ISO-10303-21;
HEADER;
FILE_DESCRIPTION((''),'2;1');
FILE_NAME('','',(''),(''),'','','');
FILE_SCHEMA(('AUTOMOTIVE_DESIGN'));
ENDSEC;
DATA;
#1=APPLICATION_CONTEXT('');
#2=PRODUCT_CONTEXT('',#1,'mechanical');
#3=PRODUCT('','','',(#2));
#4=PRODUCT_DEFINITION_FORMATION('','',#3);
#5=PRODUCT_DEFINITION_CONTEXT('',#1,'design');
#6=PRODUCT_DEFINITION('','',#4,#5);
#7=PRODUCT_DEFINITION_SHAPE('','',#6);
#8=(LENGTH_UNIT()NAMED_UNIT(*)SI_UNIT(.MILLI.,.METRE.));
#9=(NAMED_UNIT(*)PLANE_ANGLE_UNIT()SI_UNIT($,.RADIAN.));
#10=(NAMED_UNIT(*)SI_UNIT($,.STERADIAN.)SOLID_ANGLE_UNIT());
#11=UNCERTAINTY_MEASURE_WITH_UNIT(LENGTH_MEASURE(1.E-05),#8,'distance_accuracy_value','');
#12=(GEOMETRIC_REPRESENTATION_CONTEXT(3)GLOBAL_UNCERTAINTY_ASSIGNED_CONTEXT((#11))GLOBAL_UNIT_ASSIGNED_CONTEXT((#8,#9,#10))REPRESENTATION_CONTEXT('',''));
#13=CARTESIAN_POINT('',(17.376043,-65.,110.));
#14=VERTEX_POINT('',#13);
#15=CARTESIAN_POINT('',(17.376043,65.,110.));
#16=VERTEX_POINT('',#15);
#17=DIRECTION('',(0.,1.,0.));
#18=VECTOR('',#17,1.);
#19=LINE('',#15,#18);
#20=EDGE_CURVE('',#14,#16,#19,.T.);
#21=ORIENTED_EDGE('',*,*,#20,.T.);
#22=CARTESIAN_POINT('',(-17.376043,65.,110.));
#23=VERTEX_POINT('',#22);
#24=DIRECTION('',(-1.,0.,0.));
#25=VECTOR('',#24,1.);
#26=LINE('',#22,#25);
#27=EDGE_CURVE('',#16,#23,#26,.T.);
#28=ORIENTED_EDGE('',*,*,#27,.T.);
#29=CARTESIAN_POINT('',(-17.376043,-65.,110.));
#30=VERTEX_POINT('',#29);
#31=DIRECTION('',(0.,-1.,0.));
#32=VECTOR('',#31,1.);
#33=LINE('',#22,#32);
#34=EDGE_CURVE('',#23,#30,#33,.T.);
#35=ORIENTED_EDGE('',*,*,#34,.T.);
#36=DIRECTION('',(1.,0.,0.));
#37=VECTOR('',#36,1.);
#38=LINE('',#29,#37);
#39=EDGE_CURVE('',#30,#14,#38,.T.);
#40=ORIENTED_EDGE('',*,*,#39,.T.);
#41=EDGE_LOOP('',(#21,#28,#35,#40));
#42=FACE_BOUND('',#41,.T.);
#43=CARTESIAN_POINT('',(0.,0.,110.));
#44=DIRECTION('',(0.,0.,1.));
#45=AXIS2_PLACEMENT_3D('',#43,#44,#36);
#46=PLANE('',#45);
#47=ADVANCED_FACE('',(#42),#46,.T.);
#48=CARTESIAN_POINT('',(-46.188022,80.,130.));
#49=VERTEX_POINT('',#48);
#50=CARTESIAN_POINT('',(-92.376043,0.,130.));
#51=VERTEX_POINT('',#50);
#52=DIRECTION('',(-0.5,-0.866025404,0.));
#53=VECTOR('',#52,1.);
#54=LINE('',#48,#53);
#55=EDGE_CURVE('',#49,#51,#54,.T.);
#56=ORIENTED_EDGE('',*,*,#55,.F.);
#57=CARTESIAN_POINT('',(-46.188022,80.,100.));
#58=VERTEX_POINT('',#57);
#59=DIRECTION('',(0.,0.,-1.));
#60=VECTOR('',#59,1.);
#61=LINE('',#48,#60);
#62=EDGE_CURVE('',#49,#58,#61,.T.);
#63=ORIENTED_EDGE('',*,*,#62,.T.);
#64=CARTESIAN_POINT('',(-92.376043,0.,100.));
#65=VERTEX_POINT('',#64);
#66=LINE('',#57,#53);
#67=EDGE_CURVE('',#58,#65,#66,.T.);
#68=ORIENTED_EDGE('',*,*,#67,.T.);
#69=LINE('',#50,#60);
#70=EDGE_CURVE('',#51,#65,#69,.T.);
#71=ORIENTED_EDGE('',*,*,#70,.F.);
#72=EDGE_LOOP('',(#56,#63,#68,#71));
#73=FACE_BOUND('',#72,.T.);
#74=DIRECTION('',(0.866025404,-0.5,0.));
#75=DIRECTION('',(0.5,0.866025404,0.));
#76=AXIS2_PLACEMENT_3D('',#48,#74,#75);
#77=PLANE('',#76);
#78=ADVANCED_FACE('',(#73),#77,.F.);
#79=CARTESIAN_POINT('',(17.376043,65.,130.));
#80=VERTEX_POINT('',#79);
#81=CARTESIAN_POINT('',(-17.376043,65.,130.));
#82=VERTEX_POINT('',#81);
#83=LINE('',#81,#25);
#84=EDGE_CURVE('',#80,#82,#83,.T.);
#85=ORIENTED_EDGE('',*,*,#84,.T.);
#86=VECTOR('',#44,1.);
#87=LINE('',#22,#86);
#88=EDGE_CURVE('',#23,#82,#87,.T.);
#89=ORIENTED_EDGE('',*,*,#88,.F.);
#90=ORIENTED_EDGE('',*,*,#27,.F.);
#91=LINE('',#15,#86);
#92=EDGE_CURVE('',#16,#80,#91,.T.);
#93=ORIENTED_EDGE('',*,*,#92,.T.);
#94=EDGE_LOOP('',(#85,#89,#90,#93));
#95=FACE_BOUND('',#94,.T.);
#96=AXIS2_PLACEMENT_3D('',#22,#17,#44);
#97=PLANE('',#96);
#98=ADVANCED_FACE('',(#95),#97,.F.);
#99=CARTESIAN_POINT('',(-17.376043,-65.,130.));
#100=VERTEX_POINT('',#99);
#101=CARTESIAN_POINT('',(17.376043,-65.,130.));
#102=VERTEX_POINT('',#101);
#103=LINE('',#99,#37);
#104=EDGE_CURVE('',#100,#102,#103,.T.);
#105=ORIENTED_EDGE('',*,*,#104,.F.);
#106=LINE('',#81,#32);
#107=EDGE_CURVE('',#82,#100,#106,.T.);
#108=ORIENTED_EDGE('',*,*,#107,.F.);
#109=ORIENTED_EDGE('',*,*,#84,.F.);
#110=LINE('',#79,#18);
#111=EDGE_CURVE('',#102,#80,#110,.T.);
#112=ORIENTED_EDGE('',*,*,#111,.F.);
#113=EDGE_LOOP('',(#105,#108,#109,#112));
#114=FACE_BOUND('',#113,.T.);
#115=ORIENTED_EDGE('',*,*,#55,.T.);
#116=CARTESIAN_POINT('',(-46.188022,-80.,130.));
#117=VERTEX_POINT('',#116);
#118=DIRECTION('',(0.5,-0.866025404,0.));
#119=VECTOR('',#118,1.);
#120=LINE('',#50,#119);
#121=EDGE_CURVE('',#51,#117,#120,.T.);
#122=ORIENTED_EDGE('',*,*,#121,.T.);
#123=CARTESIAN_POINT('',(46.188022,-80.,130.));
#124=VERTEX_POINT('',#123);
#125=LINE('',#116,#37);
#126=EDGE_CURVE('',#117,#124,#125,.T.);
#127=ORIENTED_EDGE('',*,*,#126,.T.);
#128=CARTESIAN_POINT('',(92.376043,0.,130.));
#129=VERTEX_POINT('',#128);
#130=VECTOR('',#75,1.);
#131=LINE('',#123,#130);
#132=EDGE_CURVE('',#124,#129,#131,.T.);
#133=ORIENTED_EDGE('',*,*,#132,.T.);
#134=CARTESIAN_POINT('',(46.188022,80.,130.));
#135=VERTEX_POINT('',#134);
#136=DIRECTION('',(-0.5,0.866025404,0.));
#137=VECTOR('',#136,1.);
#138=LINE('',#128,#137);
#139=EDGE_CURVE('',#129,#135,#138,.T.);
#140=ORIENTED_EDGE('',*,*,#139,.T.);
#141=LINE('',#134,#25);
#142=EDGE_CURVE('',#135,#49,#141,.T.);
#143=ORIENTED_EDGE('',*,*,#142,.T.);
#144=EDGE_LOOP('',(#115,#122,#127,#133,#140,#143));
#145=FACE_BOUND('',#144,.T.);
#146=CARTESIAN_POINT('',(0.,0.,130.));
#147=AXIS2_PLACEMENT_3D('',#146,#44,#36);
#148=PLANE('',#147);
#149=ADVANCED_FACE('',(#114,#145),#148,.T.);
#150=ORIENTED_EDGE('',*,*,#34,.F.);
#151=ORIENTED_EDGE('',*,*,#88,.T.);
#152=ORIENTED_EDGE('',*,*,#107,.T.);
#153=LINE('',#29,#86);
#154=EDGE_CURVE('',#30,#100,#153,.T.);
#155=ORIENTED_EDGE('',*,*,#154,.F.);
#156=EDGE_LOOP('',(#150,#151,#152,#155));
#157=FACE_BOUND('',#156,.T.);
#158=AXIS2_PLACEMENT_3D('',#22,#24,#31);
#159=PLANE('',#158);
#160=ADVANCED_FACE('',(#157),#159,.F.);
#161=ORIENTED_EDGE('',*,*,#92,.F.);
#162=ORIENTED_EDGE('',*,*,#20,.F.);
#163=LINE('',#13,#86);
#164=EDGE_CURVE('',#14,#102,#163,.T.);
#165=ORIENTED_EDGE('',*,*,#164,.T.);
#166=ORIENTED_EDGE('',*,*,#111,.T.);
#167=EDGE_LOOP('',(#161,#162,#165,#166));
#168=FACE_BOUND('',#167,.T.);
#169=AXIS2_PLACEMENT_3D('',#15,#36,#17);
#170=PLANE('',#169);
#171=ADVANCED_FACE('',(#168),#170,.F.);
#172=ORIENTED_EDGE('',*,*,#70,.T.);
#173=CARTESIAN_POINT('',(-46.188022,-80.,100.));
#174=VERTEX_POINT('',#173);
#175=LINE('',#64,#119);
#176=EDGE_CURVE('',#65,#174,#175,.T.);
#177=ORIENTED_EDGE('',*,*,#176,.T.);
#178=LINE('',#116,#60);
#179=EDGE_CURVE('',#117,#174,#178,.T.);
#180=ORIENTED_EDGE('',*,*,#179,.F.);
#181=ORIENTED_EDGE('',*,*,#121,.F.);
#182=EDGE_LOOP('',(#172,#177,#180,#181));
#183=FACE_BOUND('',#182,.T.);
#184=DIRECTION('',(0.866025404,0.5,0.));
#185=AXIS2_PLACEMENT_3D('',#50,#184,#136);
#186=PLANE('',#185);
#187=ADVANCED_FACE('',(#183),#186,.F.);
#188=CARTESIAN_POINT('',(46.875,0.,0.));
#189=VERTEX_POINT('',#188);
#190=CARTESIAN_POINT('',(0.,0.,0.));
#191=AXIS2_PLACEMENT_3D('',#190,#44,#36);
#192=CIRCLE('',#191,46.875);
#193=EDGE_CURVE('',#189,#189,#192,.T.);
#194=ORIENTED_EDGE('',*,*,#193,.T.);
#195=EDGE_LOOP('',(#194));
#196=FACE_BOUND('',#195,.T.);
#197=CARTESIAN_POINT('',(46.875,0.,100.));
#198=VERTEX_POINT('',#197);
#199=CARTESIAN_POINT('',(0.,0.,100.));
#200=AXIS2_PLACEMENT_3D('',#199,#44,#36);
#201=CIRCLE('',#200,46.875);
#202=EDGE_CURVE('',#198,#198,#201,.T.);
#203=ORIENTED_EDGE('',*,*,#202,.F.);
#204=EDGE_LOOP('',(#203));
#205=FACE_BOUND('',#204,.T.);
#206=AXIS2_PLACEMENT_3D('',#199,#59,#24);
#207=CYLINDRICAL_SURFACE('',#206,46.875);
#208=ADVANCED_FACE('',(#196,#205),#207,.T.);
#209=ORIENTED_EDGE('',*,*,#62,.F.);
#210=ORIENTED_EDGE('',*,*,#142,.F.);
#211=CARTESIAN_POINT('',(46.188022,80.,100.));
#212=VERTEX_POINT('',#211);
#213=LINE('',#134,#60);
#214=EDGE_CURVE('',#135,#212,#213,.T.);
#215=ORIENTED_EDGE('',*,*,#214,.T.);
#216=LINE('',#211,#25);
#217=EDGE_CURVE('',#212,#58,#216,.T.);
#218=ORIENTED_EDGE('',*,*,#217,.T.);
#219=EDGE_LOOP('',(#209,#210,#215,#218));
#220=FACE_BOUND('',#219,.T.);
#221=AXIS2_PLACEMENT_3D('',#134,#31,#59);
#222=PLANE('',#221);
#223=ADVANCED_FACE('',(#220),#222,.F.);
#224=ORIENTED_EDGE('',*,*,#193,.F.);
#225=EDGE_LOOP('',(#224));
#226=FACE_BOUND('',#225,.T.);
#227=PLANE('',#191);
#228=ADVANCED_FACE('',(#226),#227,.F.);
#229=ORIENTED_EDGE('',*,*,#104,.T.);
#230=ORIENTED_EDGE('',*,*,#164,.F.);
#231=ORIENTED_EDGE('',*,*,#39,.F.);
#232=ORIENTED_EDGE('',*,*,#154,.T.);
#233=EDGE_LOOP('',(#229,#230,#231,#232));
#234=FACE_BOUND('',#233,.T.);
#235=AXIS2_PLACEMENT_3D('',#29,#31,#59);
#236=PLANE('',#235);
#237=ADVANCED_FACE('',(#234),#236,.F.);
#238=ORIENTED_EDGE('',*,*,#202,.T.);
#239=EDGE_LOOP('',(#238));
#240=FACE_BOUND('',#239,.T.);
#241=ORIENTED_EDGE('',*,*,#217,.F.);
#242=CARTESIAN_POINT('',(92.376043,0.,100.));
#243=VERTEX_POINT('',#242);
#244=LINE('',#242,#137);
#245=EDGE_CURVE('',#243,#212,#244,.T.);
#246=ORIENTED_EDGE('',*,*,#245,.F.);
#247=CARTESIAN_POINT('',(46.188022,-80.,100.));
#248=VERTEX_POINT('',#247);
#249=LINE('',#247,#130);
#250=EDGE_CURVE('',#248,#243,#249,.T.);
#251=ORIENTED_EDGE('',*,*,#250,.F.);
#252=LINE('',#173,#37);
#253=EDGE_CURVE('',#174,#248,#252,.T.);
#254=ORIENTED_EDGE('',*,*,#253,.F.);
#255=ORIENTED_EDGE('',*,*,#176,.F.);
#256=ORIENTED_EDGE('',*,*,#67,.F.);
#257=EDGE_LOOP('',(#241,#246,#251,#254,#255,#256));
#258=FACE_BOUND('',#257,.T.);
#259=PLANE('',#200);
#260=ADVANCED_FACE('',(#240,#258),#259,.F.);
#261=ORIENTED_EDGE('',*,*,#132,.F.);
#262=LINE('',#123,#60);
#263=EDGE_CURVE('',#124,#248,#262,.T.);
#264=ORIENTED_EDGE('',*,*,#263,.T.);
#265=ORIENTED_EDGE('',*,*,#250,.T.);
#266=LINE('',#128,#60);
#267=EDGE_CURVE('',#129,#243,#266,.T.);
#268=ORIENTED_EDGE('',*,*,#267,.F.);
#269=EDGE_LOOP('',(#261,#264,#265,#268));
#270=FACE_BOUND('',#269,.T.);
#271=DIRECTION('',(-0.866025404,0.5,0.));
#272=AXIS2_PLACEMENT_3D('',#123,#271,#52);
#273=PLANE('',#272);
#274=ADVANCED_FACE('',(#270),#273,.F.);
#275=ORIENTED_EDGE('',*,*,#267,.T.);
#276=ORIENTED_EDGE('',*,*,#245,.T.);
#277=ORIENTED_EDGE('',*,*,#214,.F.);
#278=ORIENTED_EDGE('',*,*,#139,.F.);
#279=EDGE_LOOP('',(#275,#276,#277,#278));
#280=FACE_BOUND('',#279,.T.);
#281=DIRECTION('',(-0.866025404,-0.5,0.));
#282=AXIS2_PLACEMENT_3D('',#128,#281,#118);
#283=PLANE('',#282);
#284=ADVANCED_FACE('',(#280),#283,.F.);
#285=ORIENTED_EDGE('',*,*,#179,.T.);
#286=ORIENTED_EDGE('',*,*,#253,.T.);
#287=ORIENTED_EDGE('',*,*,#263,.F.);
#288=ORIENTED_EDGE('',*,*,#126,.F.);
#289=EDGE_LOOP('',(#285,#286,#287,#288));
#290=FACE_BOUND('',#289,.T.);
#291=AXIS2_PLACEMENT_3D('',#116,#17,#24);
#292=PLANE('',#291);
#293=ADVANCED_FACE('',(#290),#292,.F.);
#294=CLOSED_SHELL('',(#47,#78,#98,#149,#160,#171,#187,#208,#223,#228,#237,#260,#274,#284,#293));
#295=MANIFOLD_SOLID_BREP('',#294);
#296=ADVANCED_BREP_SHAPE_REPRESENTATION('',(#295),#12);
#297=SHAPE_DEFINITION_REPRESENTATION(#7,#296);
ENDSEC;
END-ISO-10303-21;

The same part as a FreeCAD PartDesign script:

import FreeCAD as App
import Part
import Sketcher
from FreeCAD import Vector
Q = App.Units.Quantity

doc = App.newDocument("Part")
body = doc.addObject("PartDesign::Body", "Body")

sketch1 = body.newObject("Sketcher::SketchObject", "Sketch")
sketch1.AttachmentSupport = (doc.getObject("XY_Plane"), [""])
sketch1.MapMode = "FlatFace"
sketch1.addGeometry(Part.Circle(Vector(0, 0, 0), Vector(0, 0, 1), 46.875), False)
sketch1.addConstraint(Sketcher.Constraint("Coincident", 0, 3, -1, 1))
sketch1.addConstraint(Sketcher.Constraint("Diameter", 0, 93.75))
pad1 = body.newObject("PartDesign::Pad", "Pad")
pad1.Profile = sketch1
pad1.Length = 100

sketch2 = body.newObject("Sketcher::SketchObject", "Sketch001")
sketch2.AttachmentSupport = (doc.getObject("XY_Plane"), [""])
sketch2.MapMode = "FlatFace"
sketch2.AttachmentOffset = App.Placement(Vector(0, 0, 100), App.Rotation())
sketch2.addGeometry(Part.LineSegment(Vector(92.376043, 0, 0), Vector(46.188022, 80, 0)), False)
sketch2.addGeometry(Part.LineSegment(Vector(46.188022, 80, 0), Vector(-46.188022, 80, 0)), False)
sketch2.addGeometry(Part.LineSegment(Vector(-46.188022, 80, 0), Vector(-92.376043, 0, 0)), False)
sketch2.addGeometry(Part.LineSegment(Vector(-92.376043, 0, 0), Vector(-46.188022, -80, 0)), False)
sketch2.addGeometry(Part.LineSegment(Vector(-46.188022, -80, 0), Vector(46.188022, -80, 0)), False)
sketch2.addGeometry(Part.LineSegment(Vector(46.188022, -80, 0), Vector(92.376043, 0, 0)), False)
sketch2.addConstraint(Sketcher.Constraint("Coincident", 0, 2, 1, 1))
sketch2.addConstraint(Sketcher.Constraint("Coincident", 1, 2, 2, 1))
sketch2.addConstraint(Sketcher.Constraint("Coincident", 2, 2, 3, 1))
sketch2.addConstraint(Sketcher.Constraint("Coincident", 3, 2, 4, 1))
sketch2.addConstraint(Sketcher.Constraint("Coincident", 4, 2, 5, 1))
sketch2.addConstraint(Sketcher.Constraint("Coincident", 5, 2, 0, 1))
sketch2.addConstraint(Sketcher.Constraint("Horizontal", 1))
sketch2.addConstraint(Sketcher.Constraint("Horizontal", 4))
sketch2.addConstraint(Sketcher.Constraint("Symmetric", 0, 2, 3, 2, -1, 1))
sketch2.addConstraint(Sketcher.Constraint("Symmetric", 2, 2, 5, 2, -1, 1))
sketch2.addConstraint(Sketcher.Constraint("PointOnObject", 2, 2, -1))
sketch2.addConstraint(Sketcher.Constraint("Parallel", 2, 5))
sketch2.addConstraint(Sketcher.Constraint("Vertical", 1, 2, 3, 2))
sketch2.addConstraint(Sketcher.Constraint("Angle", 0, Q("120 deg")))
sketch2.addConstraint(Sketcher.Constraint("DistanceY", -1, 1, 0, 2, 80.0))
sketch2.addConstraint(Sketcher.Constraint("DistanceX", 1, 2, 1, 1, 92.376043))
pad2 = body.newObject("PartDesign::Pad", "Pad001")
pad2.Profile = sketch2
pad2.Length = 30

sketch3 = body.newObject("Sketcher::SketchObject", "Sketch002")
sketch3.AttachmentSupport = (doc.getObject("XY_Plane"), [""])
sketch3.MapMode = "FlatFace"
sketch3.AttachmentOffset = App.Placement(Vector(0, 0, 130), App.Rotation())
sketch3.addGeometry(Part.LineSegment(Vector(-17.376043, 65, 0), Vector(-17.376043, -65, 0)), False)
sketch3.addGeometry(Part.LineSegment(Vector(-17.376043, -65, 0), Vector(17.376043, -65, 0)), False)
sketch3.addGeometry(Part.LineSegment(Vector(17.376043, -65, 0), Vector(17.376043, 65, 0)), False)
sketch3.addGeometry(Part.LineSegment(Vector(17.376043, 65, 0), Vector(-17.376043, 65, 0)), False)
sketch3.addConstraint(Sketcher.Constraint("Coincident", 0, 2, 1, 1))
sketch3.addConstraint(Sketcher.Constraint("Coincident", 1, 2, 2, 1))
sketch3.addConstraint(Sketcher.Constraint("Coincident", 2, 2, 3, 1))
sketch3.addConstraint(Sketcher.Constraint("Coincident", 3, 2, 0, 1))
sketch3.addConstraint(Sketcher.Constraint("Vertical", 0))
sketch3.addConstraint(Sketcher.Constraint("Horizontal", 1))
sketch3.addConstraint(Sketcher.Constraint("Vertical", 2))
sketch3.addConstraint(Sketcher.Constraint("Horizontal", 3))
sketch3.addConstraint(Sketcher.Constraint("Symmetric", 0, 2, 2, 2, -1, 1))
sketch3.addConstraint(Sketcher.Constraint("DistanceY", 0, 2, 0, 1, 130.0))
sketch3.addConstraint(Sketcher.Constraint("DistanceX", 1, 1, 1, 2, 34.752086))
pocket1 = body.newObject("PartDesign::Pocket", "Pocket")
pocket1.Profile = sketch3
pocket1.Length = 20

doc.recompute()
